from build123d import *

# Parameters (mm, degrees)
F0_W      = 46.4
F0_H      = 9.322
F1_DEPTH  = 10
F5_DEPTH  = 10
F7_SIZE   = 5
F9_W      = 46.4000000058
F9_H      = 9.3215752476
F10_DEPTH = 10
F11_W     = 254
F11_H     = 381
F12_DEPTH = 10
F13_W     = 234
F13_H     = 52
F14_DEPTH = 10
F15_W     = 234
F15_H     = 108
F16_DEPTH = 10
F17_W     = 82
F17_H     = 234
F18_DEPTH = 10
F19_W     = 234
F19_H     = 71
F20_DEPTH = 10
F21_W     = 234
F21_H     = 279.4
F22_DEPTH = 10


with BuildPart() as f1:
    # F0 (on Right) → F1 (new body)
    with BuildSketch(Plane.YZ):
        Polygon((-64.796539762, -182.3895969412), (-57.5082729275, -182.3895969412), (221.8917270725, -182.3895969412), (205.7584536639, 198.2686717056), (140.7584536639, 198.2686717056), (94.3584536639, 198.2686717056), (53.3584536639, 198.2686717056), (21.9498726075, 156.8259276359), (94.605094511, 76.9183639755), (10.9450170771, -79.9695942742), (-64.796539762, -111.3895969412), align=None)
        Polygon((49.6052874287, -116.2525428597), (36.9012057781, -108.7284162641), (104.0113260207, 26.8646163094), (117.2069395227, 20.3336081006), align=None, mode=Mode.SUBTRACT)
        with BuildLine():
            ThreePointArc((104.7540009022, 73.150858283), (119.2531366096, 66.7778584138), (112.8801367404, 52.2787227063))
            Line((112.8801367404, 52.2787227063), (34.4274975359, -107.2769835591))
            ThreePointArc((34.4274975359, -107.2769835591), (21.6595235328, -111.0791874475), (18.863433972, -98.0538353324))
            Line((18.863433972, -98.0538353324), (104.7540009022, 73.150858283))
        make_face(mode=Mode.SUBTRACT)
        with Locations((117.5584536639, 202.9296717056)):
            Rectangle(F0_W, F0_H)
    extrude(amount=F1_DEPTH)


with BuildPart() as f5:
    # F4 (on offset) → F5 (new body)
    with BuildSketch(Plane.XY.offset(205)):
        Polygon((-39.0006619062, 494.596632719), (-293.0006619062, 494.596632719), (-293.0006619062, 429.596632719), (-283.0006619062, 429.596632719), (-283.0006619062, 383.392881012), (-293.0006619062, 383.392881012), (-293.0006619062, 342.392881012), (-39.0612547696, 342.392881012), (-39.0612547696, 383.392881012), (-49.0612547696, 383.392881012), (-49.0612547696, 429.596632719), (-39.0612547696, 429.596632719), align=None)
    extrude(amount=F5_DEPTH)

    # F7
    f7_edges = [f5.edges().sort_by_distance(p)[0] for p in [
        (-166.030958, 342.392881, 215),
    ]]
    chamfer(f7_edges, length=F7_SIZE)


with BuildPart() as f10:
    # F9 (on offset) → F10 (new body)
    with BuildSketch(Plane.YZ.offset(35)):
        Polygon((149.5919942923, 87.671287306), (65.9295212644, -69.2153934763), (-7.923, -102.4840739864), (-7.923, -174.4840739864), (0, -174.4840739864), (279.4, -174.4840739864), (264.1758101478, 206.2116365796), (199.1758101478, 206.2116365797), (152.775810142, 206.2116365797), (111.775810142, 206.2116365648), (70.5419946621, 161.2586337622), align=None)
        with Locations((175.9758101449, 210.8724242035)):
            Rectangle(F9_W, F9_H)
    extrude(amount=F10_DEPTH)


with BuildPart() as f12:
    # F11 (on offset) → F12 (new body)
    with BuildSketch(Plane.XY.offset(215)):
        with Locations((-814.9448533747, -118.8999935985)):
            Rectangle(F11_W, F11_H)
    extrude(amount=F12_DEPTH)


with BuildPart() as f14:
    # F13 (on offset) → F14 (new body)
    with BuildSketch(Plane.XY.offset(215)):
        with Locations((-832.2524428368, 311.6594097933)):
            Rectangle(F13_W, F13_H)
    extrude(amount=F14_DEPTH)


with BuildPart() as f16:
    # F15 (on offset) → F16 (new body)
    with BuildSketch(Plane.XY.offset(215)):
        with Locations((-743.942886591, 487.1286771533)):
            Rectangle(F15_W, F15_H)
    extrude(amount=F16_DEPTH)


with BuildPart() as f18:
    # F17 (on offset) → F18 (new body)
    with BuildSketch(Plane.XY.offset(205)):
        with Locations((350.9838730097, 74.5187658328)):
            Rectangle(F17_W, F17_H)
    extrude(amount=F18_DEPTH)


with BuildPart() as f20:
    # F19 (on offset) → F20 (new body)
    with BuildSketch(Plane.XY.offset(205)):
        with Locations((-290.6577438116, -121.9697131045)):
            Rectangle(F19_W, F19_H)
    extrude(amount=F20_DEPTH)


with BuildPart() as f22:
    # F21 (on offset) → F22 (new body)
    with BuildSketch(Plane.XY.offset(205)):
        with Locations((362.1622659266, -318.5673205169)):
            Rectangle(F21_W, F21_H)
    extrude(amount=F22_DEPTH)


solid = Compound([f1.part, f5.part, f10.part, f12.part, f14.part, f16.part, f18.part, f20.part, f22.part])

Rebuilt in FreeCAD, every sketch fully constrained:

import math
import FreeCAD as App
import Part
import Sketcher
from FreeCAD import Vector


def edges_at(feature, points):
    """Names of the edges that pass closest to the given points."""
    edges = feature.Shape.Edges
    near = lambda p: min(range(len(edges)), key=lambda i: edges[i].distToShape(Part.Vertex(*p))[0])
    return sorted({f"Edge{near(p) + 1}" for p in points})


def add_polygon(sketch, points):
    """Adds a closed chain of lines whose ends are joined by coincident constraints."""
    first, n = sketch.GeometryCount, len(points)
    for a, b in zip(points, points[1:] + points[:1]):
        sketch.addGeometry(Part.LineSegment(App.Vector(*a, 0), App.Vector(*b, 0)), False)
    for i in range(n):
        sketch.addConstraint(Sketcher.Constraint("Coincident", first + i, 2, first + (i + 1) % n, 1))

doc = App.newDocument("Part")
body = doc.addObject("PartDesign::Body", "Body")

# Sketch on YZ plane
sketch1 = body.newObject("Sketcher::SketchObject", "Sketch")
sketch1.AttachmentSupport = (doc.getObject("YZ_Plane"), [""])
sketch1.MapMode = "FlatFace"
add_polygon(sketch1, [(-65, -182), (222, -182), (206, 198), (141, 198), (141, 208), (94, 208), (94, 198), (53, 198), (22, 157), (95, 77), (11, -80), (-65, -111)])  # lines 0-11
add_polygon(sketch1, [(117, 20), (50, -116), (37, -109), (104, 27)])  # lines 12-15
sketch1.addGeometry(Part.LineSegment(Vector(19, -98, 0), Vector(105, 73, 0)), False)  # 16
sketch1.addGeometry(Part.ArcOfCircle(Part.Circle(Vector(109, 63, 0), Vector(0, 0, 1), 11), math.radians(-69), math.radians(111)), False)  # 17
sketch1.addGeometry(Part.LineSegment(Vector(113, 52, 0), Vector(34, -107, 0)), False)  # 18
sketch1.addGeometry(Part.ArcOfCircle(Part.Circle(Vector(26, -103, 0), Vector(0, 0, 1), 9), math.radians(145), math.radians(334)), False)  # 19
sketch1.addConstraint([
    Sketcher.Constraint("Coincident", 16, 2, 17, 2),
    Sketcher.Constraint("Coincident", 17, 1, 18, 1),
    Sketcher.Constraint("Tangent", 18, 2, 19, 2),
    Sketcher.Constraint("Coincident", 19, 1, 16, 1),
    Sketcher.Constraint("Horizontal", 0),
    Sketcher.Constraint("Horizontal", 2),
    Sketcher.Constraint("Vertical", 3),
    Sketcher.Constraint("Horizontal", 4),
    Sketcher.Constraint("Vertical", 5),
    Sketcher.Constraint("Horizontal", 6),
    Sketcher.Constraint("Vertical", 11),
    Sketcher.Constraint("Parallel", 12, 14),
    Sketcher.Constraint("Perpendicular", 14, 15),
    Sketcher.Constraint("Horizontal", 2, 2, 5, 2),
    Sketcher.Constraint("Equal", 9, 18),
    Sketcher.Constraint("DistanceX", 2, 2, 2, 1, 65.0),
    Sketcher.Constraint("DistanceX", 6, 2, 6, 1, 41.0),
    Sketcher.Constraint("DistanceY", 11, 2, 11, 1, 71.0),
    Sketcher.Constraint("Distance", 1, 381.0),
    Sketcher.Constraint("Distance", 7, 52.0),
    Sketcher.Constraint("Distance", 8, 108.0),
    Sketcher.Constraint("Distance", 10, 82.0),
    Sketcher.Constraint("DistanceX", 4, 2, 4, 1, 46.4),
    Sketcher.Constraint("Distance", 9, 177.8),
    Sketcher.Constraint("Distance", 12, 152.4),
    Sketcher.Constraint("DistanceY", 3, 1, 3, 2, 9.322),
    Sketcher.Constraint("Radius", 17, 11.199109),
    Sketcher.Constraint("DistanceX", -1, 1, 16, 2, 104.754001),
    Sketcher.Constraint("Radius", 19, 9.073376),
    Sketcher.Constraint("Distance", 14, 151.291899),
    Sketcher.Constraint("DistanceX", 19, 3, 1, 2, 179.473301),
    Sketcher.Constraint("DistanceX", 0, 1, 0, 2, 286.688267),
    Sketcher.Constraint("DistanceX", -1, 1, 17, 3, 108.817069),
    Sketcher.Constraint("DistanceY", -1, 1, 17, 3, 62.71479),
    Sketcher.Constraint("DistanceY", 19, 3, -1, 1, 103.273438),
    Sketcher.Constraint("DistanceY", -1, 1, 1, 2, 198.268672),
    Sketcher.Constraint("DistanceX", 10, 2, -1, 1, 64.79654),
    Sketcher.Constraint("DistanceX", -1, 1, 15, 2, 117.20694),
    Sketcher.Constraint("DistanceY", -1, 1, 15, 2, 20.333608),
    Sketcher.Constraint("DistanceY", 0, 2, 19, 3, 79.116159),
    Sketcher.Constraint("DistanceX", 7, 2, 6, 2, 31.408581),
    Sketcher.Constraint("DistanceX", 7, 2, 8, 2, 72.655222),
    Sketcher.Constraint("DistanceX", 9, 2, 12, 2, 38.66027),
    Sketcher.Constraint("DistanceX", 13, 2, 12, 2, 12.704082),
    Sketcher.Constraint("DistanceX", 19, 1, 19, 3, 7.421718),
])
pad1 = body.newObject("PartDesign::Pad", "Pad")
pad1.Profile = sketch1
pad1.Length = 10
body2 = doc.addObject("PartDesign::Body", "Body001")

# Sketch on XY plane
sketch2 = body2.newObject("Sketcher::SketchObject", "Sketch001")
sketch2.AttachmentSupport = (doc.getObject("XY_Plane001"), [""])
sketch2.MapMode = "FlatFace"
sketch2.AttachmentOffset = App.Placement(Vector(0, 0, 205), App.Rotation())
add_polygon(sketch2, [(-39, 495), (-293, 495), (-293, 430), (-283, 430), (-283, 383), (-293, 383), (-293, 342), (-39, 342), (-39, 383), (-49, 383), (-49, 430), (-39, 430)])  # lines 0-11
sketch2.addConstraint([
    Sketcher.Constraint("Horizontal", 0),
    Sketcher.Constraint("Vertical", 1),
    Sketcher.Constraint("Horizontal", 2),
    Sketcher.Constraint("Vertical", 3),
    Sketcher.Constraint("Horizontal", 4),
    Sketcher.Constraint("Vertical", 5),
    Sketcher.Constraint("Horizontal", 6),
    Sketcher.Constraint("Vertical", 7),
    Sketcher.Constraint("Horizontal", 8),
    Sketcher.Constraint("Vertical", 9),
    Sketcher.Constraint("Horizontal", 10),
    Sketcher.Constraint("Horizontal", 4, 2, 7, 2),
    Sketcher.Constraint("Horizontal", 2, 2, 9, 2),
    Sketcher.Constraint("Vertical", 1, 2, 4, 2),
    Sketcher.Constraint("Vertical", 7, 2, 10, 2),
    Sketcher.Constraint("Equal", 4, 8),
    Sketcher.Constraint("DistanceX", 0, 2, 0, 1, 254.0),
    Sketcher.Constraint("DistanceX", 2, 1, 2, 2, 10.0),
    Sketcher.Constraint("DistanceY", 1, 2, 1, 1, 65.0),
    Sketcher.Constraint("DistanceY", 5, 2, 5, 1, 41.0),
    Sketcher.Constraint("DistanceY", 3, 2, 3, 1, 46.203752),
    Sketcher.Constraint("DistanceX", 6, 1, 6, 2, 253.939407),
    Sketcher.Constraint("DistanceX", 0, 2, -1, 1, 293.000662),
    Sketcher.Constraint("DistanceY", -1, 1, 3, 2, 383.392881),
])
pad2 = body2.newObject("PartDesign::Pad", "Pad001")
pad2.Profile = sketch2
pad2.Length = 10
doc.recompute()

chamfer = body2.newObject("PartDesign::Chamfer", "Chamfer")
chamfer.Base = (pad2, edges_at(pad2, [(-166.031, 342.393, 215)]))
chamfer.Size = 5
body3 = doc.addObject("PartDesign::Body", "Body002")

# Sketch on YZ plane
sketch3 = body3.newObject("Sketcher::SketchObject", "Sketch002")
sketch3.AttachmentSupport = (doc.getObject("YZ_Plane002"), [""])
sketch3.MapMode = "FlatFace"
sketch3.AttachmentOffset = App.Placement(Vector(0, 0, 35), App.Rotation())
add_polygon(sketch3, [(150, 88), (66, -69), (-8, -102), (-8, -174), (279, -174), (264, 206), (199, 206), (199, 216), (153, 216), (153, 206), (112, 206), (71, 161)])  # lines 0-11
sketch3.addConstraint([
    Sketcher.Constraint("Vertical", 2),
    Sketcher.Constraint("Horizontal", 3),
    Sketcher.Constraint("Horizontal", 5),
    Sketcher.Constraint("Vertical", 6),
    Sketcher.Constraint("Horizontal", 7),
    Sketcher.Constraint("Vertical", 8),
    Sketcher.Constraint("Horizontal", 9),
    Sketcher.Constraint("Horizontal", 5, 2, 8, 2),
    Sketcher.Constraint("DistanceX", 5, 2, 5, 1, 65.0),
    Sketcher.Constraint("DistanceX", 9, 2, 9, 1, 41.0),
    Sketcher.Constraint("DistanceY", 2, 2, 2, 1, 72.0),
    Sketcher.Constraint("Distance", 1, 81.0),
    Sketcher.Constraint("Distance", 4, 381.0),
    Sketcher.Constraint("Distance", 10, 61.0),
    Sketcher.Constraint("Distance", 11, 108.0),
    Sketcher.Constraint("DistanceX", 7, 2, 7, 1, 46.4),
    Sketcher.Constraint("Distance", 0, 177.8),
    Sketcher.Constraint("DistanceX", -1, 1, 3, 2, 279.4),
    Sketcher.Constraint("DistanceX", 3, 1, 3, 2, 287.323),
    Sketcher.Constraint("DistanceX", 10, 2, 11, 2, 79.05),
    Sketcher.Constraint("DistanceY", 6, 1, 6, 2, 9.321575),
    Sketcher.Constraint("DistanceX", -1, 1, 0, 2, 65.929521),
    Sketcher.Constraint("DistanceX", -1, 1, 4, 2, 264.17581),
    Sketcher.Constraint("DistanceY", -1, 1, 6, 2, 215.533212),
])
pad3 = body3.newObject("PartDesign::Pad", "Pad002")
pad3.Profile = sketch3
pad3.Length = 10
body4 = doc.addObject("PartDesign::Body", "Body003")

# Sketch on XY plane
sketch4 = body4.newObject("Sketcher::SketchObject", "Sketch003")
sketch4.AttachmentSupport = (doc.getObject("XY_Plane003"), [""])
sketch4.MapMode = "FlatFace"
sketch4.AttachmentOffset = App.Placement(Vector(0, 0, 215), App.Rotation())
add_polygon(sketch4, [(-942, 72), (-942, -309), (-688, -309), (-688, 72)])  # lines 0-3
sketch4.addConstraint([
    Sketcher.Constraint("Vertical", 0),
    Sketcher.Constraint("Horizontal", 1),
    Sketcher.Constraint("Vertical", 2),
    Sketcher.Constraint("Horizontal", 3),
    Sketcher.Constraint("DistanceX", 1, 1, 1, 2, 254.0),
    Sketcher.Constraint("DistanceY", 0, 2, 0, 1, 381.0),
    Sketcher.Constraint("DistanceX", 0, 2, -1, 1, 941.944853),
    Sketcher.Constraint("DistanceY", 0, 2, -1, 1, 309.399994),
])
pad4 = body4.newObject("PartDesign::Pad", "Pad003")
pad4.Profile = sketch4
pad4.Length = 10
body5 = doc.addObject("PartDesign::Body", "Body004")

# Sketch on XY plane
sketch5 = body5.newObject("Sketcher::SketchObject", "Sketch004")
sketch5.AttachmentSupport = (doc.getObject("XY_Plane004"), [""])
sketch5.MapMode = "FlatFace"
sketch5.AttachmentOffset = App.Placement(Vector(0, 0, 215), App.Rotation())
add_polygon(sketch5, [(-949, 338), (-949, 286), (-715, 286), (-715, 338)])  # lines 0-3
sketch5.addConstraint([
    Sketcher.Constraint("Vertical", 0),
    Sketcher.Constraint("Horizontal", 1),
    Sketcher.Constraint("Vertical", 2),
    Sketcher.Constraint("Horizontal", 3),
    Sketcher.Constraint("DistanceX", 1, 1, 1, 2, 234.0),
    Sketcher.Constraint("DistanceY", 0, 2, 0, 1, 52.0),
    Sketcher.Constraint("DistanceY", -1, 1, 0, 2, 285.65941),
    Sketcher.Constraint("DistanceX", 0, 2, -1, 1, 949.252443),
])
pad5 = body5.newObject("PartDesign::Pad", "Pad004")
pad5.Profile = sketch5
pad5.Length = 10
body6 = doc.addObject("PartDesign::Body", "Body005")

# Sketch on XY plane
sketch6 = body6.newObject("Sketcher::SketchObject", "Sketch005")
sketch6.AttachmentSupport = (doc.getObject("XY_Plane005"), [""])
sketch6.MapMode = "FlatFace"
sketch6.AttachmentOffset = App.Placement(Vector(0, 0, 215), App.Rotation())
add_polygon(sketch6, [(-861, 541), (-861, 433), (-627, 433), (-627, 541)])  # lines 0-3
sketch6.addConstraint([
    Sketcher.Constraint("Vertical", 0),
    Sketcher.Constraint("Horizontal", 1),
    Sketcher.Constraint("Vertical", 2),
    Sketcher.Constraint("Horizontal", 3),
    Sketcher.Constraint("DistanceX", 1, 1, 1, 2, 234.0),
    Sketcher.Constraint("DistanceY", 0, 2, 0, 1, 108.0),
    Sketcher.Constraint("DistanceX", 0, 2, -1, 1, 860.942887),
    Sketcher.Constraint("DistanceY", -1, 1, 0, 2, 433.128677),
])
pad6 = body6.newObject("PartDesign::Pad", "Pad005")
pad6.Profile = sketch6
pad6.Length = 10
body7 = doc.addObject("PartDesign::Body", "Body006")

# Sketch on XY plane
sketch7 = body7.newObject("Sketcher::SketchObject", "Sketch006")
sketch7.AttachmentSupport = (doc.getObject("XY_Plane006"), [""])
sketch7.MapMode = "FlatFace"
sketch7.AttachmentOffset = App.Placement(Vector(0, 0, 205), App.Rotation())
add_polygon(sketch7, [(310, 192), (310, -42), (392, -42), (392, 192)])  # lines 0-3
sketch7.addConstraint([
    Sketcher.Constraint("Vertical", 0),
    Sketcher.Constraint("Horizontal", 1),
    Sketcher.Constraint("Vertical", 2),
    Sketcher.Constraint("Horizontal", 3),
    Sketcher.Constraint("DistanceX", 1, 1, 1, 2, 82.0),
    Sketcher.Constraint("DistanceY", 0, 2, 0, 1, 234.0),
    Sketcher.Constraint("DistanceX", -1, 1, 0, 2, 309.983873),
    Sketcher.Constraint("DistanceY", 0, 2, -1, 1, 42.481234),
])
pad7 = body7.newObject("PartDesign::Pad", "Pad006")
pad7.Profile = sketch7
pad7.Length = 10
body8 = doc.addObject("PartDesign::Body", "Body007")

# Sketch on XY plane
sketch8 = body8.newObject("Sketcher::SketchObject", "Sketch007")
sketch8.AttachmentSupport = (doc.getObject("XY_Plane007"), [""])
sketch8.MapMode = "FlatFace"
sketch8.AttachmentOffset = App.Placement(Vector(0, 0, 205), App.Rotation())
add_polygon(sketch8, [(-408, -86), (-408, -157), (-174, -157), (-174, -86)])  # lines 0-3
sketch8.addConstraint([
    Sketcher.Constraint("Vertical", 0),
    Sketcher.Constraint("Horizontal", 1),
    Sketcher.Constraint("Vertical", 2),
    Sketcher.Constraint("Horizontal", 3),
    Sketcher.Constraint("DistanceX", 1, 1, 1, 2, 234.0),
    Sketcher.Constraint("DistanceY", 0, 2, 0, 1, 71.0),
    Sketcher.Constraint("DistanceX", 0, 2, -1, 1, 407.657744),
    Sketcher.Constraint("DistanceY", 0, 2, -1, 1, 157.469713),
])
pad8 = body8.newObject("PartDesign::Pad", "Pad007")
pad8.Profile = sketch8
pad8.Length = 10
body9 = doc.addObject("PartDesign::Body", "Body008")

# Sketch on XY plane
sketch9 = body9.newObject("Sketcher::SketchObject", "Sketch008")
sketch9.AttachmentSupport = (doc.getObject("XY_Plane008"), [""])
sketch9.MapMode = "FlatFace"
sketch9.AttachmentOffset = App.Placement(Vector(0, 0, 205), App.Rotation())
add_polygon(sketch9, [(245, -179), (245, -458), (479, -458), (479, -179)])  # lines 0-3
sketch9.addConstraint([
    Sketcher.Constraint("Vertical", 0),
    Sketcher.Constraint("Horizontal", 1),
    Sketcher.Constraint("Vertical", 2),
    Sketcher.Constraint("Horizontal", 3),
    Sketcher.Constraint("DistanceX", 1, 1, 1, 2, 234.0),
    Sketcher.Constraint("DistanceY", 0, 2, 0, 1, 279.4),
    Sketcher.Constraint("DistanceY", 0, 2, -1, 1, 458.267321),
    Sketcher.Constraint("DistanceX", -1, 1, 0, 2, 245.162266),
])
pad9 = body9.newObject("PartDesign::Pad", "Pad008")
pad9.Profile = sketch9
pad9.Length = 10

doc.recompute()
